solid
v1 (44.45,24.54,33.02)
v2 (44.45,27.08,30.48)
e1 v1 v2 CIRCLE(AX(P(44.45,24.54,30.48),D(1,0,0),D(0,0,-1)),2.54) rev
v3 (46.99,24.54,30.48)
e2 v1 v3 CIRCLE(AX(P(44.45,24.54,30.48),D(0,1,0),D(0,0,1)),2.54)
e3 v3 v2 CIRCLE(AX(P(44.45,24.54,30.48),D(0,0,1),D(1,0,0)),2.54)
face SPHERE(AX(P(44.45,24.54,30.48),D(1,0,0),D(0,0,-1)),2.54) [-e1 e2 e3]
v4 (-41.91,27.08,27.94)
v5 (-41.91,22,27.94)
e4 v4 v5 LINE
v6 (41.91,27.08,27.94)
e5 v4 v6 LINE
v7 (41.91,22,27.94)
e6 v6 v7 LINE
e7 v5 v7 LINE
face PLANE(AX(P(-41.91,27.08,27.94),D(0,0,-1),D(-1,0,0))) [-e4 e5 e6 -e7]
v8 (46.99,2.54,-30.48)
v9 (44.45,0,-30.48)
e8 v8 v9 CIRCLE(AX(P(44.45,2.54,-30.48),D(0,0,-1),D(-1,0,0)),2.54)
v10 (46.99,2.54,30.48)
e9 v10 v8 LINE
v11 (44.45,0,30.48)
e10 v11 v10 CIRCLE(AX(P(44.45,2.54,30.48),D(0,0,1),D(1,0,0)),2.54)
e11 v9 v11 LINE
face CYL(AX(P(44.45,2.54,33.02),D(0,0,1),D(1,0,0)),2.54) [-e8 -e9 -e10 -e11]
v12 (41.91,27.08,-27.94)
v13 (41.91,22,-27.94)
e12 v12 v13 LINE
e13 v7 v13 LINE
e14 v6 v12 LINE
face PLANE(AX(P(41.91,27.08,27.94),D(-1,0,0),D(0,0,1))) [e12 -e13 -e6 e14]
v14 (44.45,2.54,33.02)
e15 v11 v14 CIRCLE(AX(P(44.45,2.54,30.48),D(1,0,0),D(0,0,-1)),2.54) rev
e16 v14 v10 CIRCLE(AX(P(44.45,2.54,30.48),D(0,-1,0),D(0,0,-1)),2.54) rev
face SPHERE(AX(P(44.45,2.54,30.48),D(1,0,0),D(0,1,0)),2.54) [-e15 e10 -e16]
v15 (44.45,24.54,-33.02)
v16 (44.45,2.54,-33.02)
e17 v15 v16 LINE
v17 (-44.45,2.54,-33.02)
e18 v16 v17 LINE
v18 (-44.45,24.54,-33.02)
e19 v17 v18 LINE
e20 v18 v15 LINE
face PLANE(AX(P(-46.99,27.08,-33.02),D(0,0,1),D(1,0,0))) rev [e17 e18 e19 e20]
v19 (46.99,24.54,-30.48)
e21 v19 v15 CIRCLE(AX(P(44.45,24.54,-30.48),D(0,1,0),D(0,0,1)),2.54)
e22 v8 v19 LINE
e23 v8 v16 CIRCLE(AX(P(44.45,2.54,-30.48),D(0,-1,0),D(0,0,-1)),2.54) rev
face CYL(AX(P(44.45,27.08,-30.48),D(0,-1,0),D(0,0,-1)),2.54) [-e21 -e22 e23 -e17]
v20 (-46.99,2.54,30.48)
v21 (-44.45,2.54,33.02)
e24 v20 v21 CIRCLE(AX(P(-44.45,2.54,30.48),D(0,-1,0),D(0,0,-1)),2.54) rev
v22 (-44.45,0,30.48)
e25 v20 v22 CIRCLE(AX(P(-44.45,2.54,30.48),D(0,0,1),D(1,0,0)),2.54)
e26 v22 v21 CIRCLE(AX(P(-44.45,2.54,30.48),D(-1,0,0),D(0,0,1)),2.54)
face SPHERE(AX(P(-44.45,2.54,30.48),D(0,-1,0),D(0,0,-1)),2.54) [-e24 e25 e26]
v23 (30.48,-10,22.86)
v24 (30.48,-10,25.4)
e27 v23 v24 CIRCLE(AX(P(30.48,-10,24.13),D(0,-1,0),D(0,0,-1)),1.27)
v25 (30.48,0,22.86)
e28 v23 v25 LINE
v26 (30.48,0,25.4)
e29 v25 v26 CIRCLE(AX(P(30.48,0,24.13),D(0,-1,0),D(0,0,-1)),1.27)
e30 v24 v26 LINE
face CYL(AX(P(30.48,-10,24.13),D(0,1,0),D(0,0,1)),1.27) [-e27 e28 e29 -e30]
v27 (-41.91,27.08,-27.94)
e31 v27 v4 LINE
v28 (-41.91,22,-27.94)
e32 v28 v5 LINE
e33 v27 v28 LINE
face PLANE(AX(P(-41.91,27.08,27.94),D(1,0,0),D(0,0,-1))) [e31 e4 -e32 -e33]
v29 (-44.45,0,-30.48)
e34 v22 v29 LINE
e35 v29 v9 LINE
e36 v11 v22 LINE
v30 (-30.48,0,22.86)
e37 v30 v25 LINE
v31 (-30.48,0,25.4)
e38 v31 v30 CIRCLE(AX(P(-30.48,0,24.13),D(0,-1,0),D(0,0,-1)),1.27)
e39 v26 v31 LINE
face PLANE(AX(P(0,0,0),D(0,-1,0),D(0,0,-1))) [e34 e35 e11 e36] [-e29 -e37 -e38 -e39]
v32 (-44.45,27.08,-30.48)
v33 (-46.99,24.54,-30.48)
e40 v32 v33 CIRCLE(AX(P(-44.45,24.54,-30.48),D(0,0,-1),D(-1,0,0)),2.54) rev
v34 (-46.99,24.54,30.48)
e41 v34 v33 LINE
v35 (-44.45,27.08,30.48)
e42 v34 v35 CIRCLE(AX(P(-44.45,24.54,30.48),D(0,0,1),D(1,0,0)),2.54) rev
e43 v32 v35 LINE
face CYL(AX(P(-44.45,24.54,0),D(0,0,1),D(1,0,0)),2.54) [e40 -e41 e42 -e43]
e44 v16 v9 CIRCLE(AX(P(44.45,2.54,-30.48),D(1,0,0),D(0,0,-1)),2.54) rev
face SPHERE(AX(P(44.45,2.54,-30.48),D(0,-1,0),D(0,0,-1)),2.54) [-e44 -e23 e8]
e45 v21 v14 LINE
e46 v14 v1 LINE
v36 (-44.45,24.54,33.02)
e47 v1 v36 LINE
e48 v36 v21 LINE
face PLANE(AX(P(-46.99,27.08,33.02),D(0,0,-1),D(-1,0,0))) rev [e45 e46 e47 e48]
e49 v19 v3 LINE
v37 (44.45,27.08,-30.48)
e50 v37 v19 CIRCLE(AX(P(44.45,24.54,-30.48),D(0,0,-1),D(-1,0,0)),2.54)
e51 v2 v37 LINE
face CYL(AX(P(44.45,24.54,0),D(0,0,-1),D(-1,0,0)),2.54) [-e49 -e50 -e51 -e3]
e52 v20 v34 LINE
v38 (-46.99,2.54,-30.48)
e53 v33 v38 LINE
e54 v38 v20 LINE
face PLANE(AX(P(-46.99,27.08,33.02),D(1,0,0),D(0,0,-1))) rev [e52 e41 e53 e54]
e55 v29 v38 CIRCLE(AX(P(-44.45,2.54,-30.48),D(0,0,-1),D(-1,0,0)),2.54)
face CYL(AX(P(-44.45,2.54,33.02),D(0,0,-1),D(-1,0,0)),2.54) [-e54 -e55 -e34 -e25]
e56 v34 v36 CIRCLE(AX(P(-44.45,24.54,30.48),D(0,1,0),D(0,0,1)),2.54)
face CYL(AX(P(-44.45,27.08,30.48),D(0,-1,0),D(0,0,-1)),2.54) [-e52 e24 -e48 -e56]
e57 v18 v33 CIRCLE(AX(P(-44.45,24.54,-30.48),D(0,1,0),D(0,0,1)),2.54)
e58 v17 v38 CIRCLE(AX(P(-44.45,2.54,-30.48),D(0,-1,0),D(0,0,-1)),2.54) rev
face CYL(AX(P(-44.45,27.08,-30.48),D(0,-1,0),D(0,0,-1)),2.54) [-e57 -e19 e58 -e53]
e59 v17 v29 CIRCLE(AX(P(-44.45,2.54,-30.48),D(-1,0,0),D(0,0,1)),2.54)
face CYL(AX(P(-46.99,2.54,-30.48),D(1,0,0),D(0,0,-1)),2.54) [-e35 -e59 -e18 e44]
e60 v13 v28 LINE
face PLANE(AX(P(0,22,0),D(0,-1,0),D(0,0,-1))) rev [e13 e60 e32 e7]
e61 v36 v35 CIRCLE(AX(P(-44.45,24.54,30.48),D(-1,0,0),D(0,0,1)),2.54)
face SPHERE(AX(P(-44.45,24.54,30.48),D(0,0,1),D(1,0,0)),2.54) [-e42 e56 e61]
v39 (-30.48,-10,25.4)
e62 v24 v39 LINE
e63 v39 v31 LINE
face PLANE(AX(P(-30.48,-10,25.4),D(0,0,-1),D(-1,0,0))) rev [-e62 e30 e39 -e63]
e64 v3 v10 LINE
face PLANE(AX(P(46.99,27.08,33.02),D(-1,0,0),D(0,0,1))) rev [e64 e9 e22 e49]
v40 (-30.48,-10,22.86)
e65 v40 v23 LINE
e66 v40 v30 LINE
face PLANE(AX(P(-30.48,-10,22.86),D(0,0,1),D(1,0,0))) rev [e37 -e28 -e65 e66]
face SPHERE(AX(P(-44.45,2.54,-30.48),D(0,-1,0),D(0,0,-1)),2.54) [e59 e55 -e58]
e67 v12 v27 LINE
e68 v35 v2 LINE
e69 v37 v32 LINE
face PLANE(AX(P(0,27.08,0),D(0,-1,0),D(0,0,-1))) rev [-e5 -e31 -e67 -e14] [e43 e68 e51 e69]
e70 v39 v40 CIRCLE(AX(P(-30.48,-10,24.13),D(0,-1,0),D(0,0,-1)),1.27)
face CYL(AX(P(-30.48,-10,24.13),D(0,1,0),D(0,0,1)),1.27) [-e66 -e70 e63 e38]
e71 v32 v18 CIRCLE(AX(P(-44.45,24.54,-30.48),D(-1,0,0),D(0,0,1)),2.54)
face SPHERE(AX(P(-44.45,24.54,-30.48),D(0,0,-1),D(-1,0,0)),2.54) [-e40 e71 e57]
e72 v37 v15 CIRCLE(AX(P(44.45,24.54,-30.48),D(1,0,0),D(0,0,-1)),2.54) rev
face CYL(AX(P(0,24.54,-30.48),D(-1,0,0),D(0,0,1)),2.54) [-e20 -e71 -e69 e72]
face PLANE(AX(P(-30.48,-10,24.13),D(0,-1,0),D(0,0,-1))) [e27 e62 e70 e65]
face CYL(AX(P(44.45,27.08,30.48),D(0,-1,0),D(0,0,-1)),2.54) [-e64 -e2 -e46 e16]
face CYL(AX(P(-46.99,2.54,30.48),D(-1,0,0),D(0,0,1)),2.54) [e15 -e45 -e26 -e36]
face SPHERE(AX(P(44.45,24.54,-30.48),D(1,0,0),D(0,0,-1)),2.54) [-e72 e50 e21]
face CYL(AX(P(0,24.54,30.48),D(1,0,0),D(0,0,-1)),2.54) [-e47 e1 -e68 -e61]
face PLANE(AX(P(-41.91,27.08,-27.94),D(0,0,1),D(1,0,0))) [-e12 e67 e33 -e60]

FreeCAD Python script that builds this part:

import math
import FreeCAD as App
import Part
import Sketcher
from FreeCAD import Vector
Q = App.Units.Quantity


def edges_at(feature, points):
    """Names of the edges that pass closest to the given points."""
    edges = feature.Shape.Edges
    near = lambda p: min(range(len(edges)), key=lambda i: edges[i].distToShape(Part.Vertex(*p))[0])
    return sorted({f"Edge{near(p) + 1}" for p in points})


def add_polygon(sketch, points):
    """Adds a closed chain of lines whose ends are joined by coincident constraints."""
    first, n = sketch.GeometryCount, len(points)
    for a, b in zip(points, points[1:] + points[:1]):
        sketch.addGeometry(Part.LineSegment(App.Vector(*a, 0), App.Vector(*b, 0)), False)
    for i in range(n):
        sketch.addConstraint(Sketcher.Constraint("Coincident", first + i, 2, first + (i + 1) % n, 1))

doc = App.newDocument("Part")
params = doc.addObject("Spreadsheet::Sheet", "Params")
for row, (alias, value) in enumerate([
    ("sketch1_width", "3.7 in"),
    ("sketch1_width2", "3.3 in"),
    ("sketch1_height", "2.6 in"),
    ("sketch1_height2", "2.2 in"),
    ("pad1_length", "27.08 mm"),
    ("sketch2_width", "3.3 in"),
    ("sketch2_height", "2.2 in"),
    ("pad2_length", "22 mm"),
    ("sketch3_radius", "0.05 in"),
    ("sketch3_width", "2.4 in"),
    ("pad3_length", "10 mm"),
    ("fillet_radius", "0.1 in"),
], start=1):
    params.set(f"A{row}", alias)
    params.set(f"B{row}", "=" + value)
    params.setAlias(f"B{row}", alias)

body = doc.addObject("PartDesign::Body", "Body")

sketch1 = body.newObject("Sketcher::SketchObject", "Sketch")
sketch1.AttachmentSupport = (doc.getObject("XZ_Plane"), [""])
sketch1.MapMode = "FlatFace"
add_polygon(sketch1, [(-47, -33), (-47, 33), (47, 33), (47, -33)])
add_polygon(sketch1, [(42, 28), (-42, 28), (-42, -28), (42, -28)])
sketch1.addConstraint([
    Sketcher.Constraint("Vertical", 0),
    Sketcher.Constraint("Horizontal", 1),
    Sketcher.Constraint("Vertical", 2),
    Sketcher.Constraint("Horizontal", 3),
    Sketcher.Constraint("Horizontal", 4),
    Sketcher.Constraint("Vertical", 5),
    Sketcher.Constraint("Horizontal", 6),
    Sketcher.Constraint("Vertical", 7),
    Sketcher.Constraint("Symmetric", 0, 2, 2, 2, -1, 1),
    Sketcher.Constraint("Symmetric", 4, 2, 6, 2, -1, 1),
    Sketcher.Constraint("DistanceX", 1, 1, 1, 2, Q("3.7 in")),
    Sketcher.Constraint("DistanceX", 4, 2, 4, 1, Q("3.3 in")),
    Sketcher.Constraint("DistanceY", 0, 1, 0, 2, Q("2.6 in")),
    Sketcher.Constraint("DistanceY", 5, 2, 5, 1, Q("2.2 in")),
])
sketch1.setExpression("Constraints[18]", "Params.sketch1_width")
sketch1.setExpression("Constraints[19]", "Params.sketch1_width2")
sketch1.setExpression("Constraints[20]", "Params.sketch1_height")
sketch1.setExpression("Constraints[21]", "Params.sketch1_height2")
pad1 = body.newObject("PartDesign::Pad", "Pad")
pad1.Profile = sketch1
pad1.setExpression("Length", "Params.pad1_length")
pad1.Reversed = True

sketch2 = body.newObject("Sketcher::SketchObject", "Sketch001")
sketch2.AttachmentSupport = (doc.getObject("XZ_Plane"), [""])
sketch2.MapMode = "FlatFace"
add_polygon(sketch2, [(-42, -28), (-42, 28), (42, 28), (42, -28)])
sketch2.addConstraint([
    Sketcher.Constraint("Vertical", 0),
    Sketcher.Constraint("Horizontal", 1),
    Sketcher.Constraint("Vertical", 2),
    Sketcher.Constraint("Horizontal", 3),
    Sketcher.Constraint("Symmetric", 0, 2, 2, 2, -1, 1),
    Sketcher.Constraint("DistanceX", 1, 1, 1, 2, Q("3.3 in")),
    Sketcher.Constraint("DistanceY", 0, 1, 0, 2, Q("2.2 in")),
])
sketch2.setExpression("Constraints[9]", "Params.sketch2_width")
sketch2.setExpression("Constraints[10]", "Params.sketch2_height")
pad2 = body.newObject("PartDesign::Pad", "Pad001")
pad2.Profile = sketch2
pad2.setExpression("Length", "Params.pad2_length")
pad2.Reversed = True

sketch3 = body.newObject("Sketcher::SketchObject", "Sketch002")
sketch3.AttachmentSupport = (doc.getObject("XZ_Plane"), [""])
sketch3.MapMode = "FlatFace"
sketch3.addGeometry([
    Part.LineSegment(Vector(30.5, 25.4, 0), Vector(-30.5, 25.4, 0)),
    Part.ArcOfCircle(Part.Circle(Vector(-30.5, 24.1, 0), Vector(0, 0, 1), 1.3), math.radians(90), math.radians(270)),
    Part.LineSegment(Vector(-30.5, 22.9, 0), Vector(30.5, 22.9, 0)),
    Part.ArcOfCircle(Part.Circle(Vector(30.5, 24.1, 0), Vector(0, 0, 1), 1.3), math.radians(-90), math.radians(90)),
], False)
sketch3.addConstraint([
    Sketcher.Constraint("Tangent", 0, 2, 1, 1),
    Sketcher.Constraint("Tangent", 1, 2, 2, 1),
    Sketcher.Constraint("Tangent", 2, 2, 3, 1),
    Sketcher.Constraint("Tangent", 3, 2, 0, 1),
    Sketcher.Constraint("Horizontal", 0),
    Sketcher.Constraint("Horizontal", 2),
    Sketcher.Constraint("Radius", 1, Q("0.05 in")),
    Sketcher.Constraint("DistanceX", 0, 2, 0, 1, Q("2.4 in")),
    Sketcher.Constraint("DistanceY", -1, 1, 0, 2, Q("1 in")),
    Sketcher.Constraint("DistanceX", 1, 3, -1, 1, Q("1.2 in")),
])
sketch3.setExpression("Constraints[6]", "Params.sketch3_radius")
sketch3.setExpression("Constraints[7]", "Params.sketch3_width")
pad3 = body.newObject("PartDesign::Pad", "Pad002")
pad3.Profile = sketch3
pad3.setExpression("Length", "Params.pad3_length")
doc.recompute()

fillet = body.newObject("PartDesign::Fillet", "Fillet")
fillet.Base = (pad3, edges_at(pad3, [
    (46.99, 27.08, 0),
    (0, 27.08, -33.02),
    (-46.99, 27.08, 0),
    (0, 0, -33.02),
    (46.99, 0, 0),
    (0, 0, 33.02),
    (-46.99, 0, 0),
    (-46.99, 13.54, -33.02),
    (46.99, 13.54, -33.02),
    (46.99, 13.54, 33.02),
    (-46.99, 13.54, 33.02),
    (0, 27.08, 33.02),
]))
fillet.setExpression("Radius", "Params.fillet_radius")

doc.recompute()
